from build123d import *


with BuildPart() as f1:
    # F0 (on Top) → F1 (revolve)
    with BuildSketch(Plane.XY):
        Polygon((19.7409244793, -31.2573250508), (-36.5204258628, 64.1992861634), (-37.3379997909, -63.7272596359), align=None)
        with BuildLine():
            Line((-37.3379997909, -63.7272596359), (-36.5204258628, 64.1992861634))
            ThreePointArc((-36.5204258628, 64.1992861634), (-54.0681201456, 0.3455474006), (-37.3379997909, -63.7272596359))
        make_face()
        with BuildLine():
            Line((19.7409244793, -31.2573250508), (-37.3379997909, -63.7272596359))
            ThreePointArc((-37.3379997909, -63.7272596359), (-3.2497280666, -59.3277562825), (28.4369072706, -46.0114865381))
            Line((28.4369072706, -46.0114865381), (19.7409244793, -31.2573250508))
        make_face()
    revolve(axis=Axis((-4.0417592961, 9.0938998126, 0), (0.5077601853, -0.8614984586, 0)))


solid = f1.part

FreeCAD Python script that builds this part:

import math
import FreeCAD as App
import Part
import Sketcher

doc = App.newDocument("Part")
body = doc.addObject("PartDesign::Body", "Body")

# Sketch on XY plane
sketch1 = doc.addObject("Sketcher::SketchObject", "Sketch")
body.addObject(sketch1)
sketch1.AttachmentSupport = (doc.XY_Plane, [""])
sketch1.MapMode = "FlatFace"
sketch1.addGeometry([
    Part.LineSegment(App.Vector(20, -31, 0), App.Vector(-37, 64, 0)),
    Part.ArcOfCircle(Part.Circle(App.Vector(74, 0, 0), App.Vector(0, 0, 1), 128), math.radians(150), math.radians(210)),
    Part.ArcOfCircle(Part.Circle(App.Vector(-37, 64, 0), App.Vector(0, 0, 1), 128), math.radians(-90), math.radians(-59)),
    Part.LineSegment(App.Vector(28, -46, 0), App.Vector(20, -31, 0)),
], False)
sketch1.addGeometry(Part.LineSegment(App.Vector(-37, 64, 0), App.Vector(28, -46, 0)), True)  # axis
sketch1.addConstraint([
    Sketcher.Constraint("Coincident", 0, 2, 1, 1),
    Sketcher.Constraint("Coincident", 1, 2, 2, 1),
    Sketcher.Constraint("Coincident", 2, 2, 3, 1),
    Sketcher.Constraint("Coincident", 3, 2, 0, 1),
    Sketcher.Constraint("Coincident", 0, 2, 2, 3),
    Sketcher.Constraint("Coincident", 4, 1, 2, 3),
    Sketcher.Constraint("Coincident", 4, 2, 2, 2),
    Sketcher.Constraint("Equal", 1, 2),
    Sketcher.Constraint("Parallel", 0, 3),
    Sketcher.Constraint("Radius", 1, 127.929158),
    Sketcher.Constraint("DistanceX", 1, 2, -1, 1, 37.338),
    Sketcher.Constraint("DistanceX", 3, 2, 1, 3, 54.117501),
    Sketcher.Constraint("DistanceY", 3, 2, 1, 3, 30.785299),
    Sketcher.Constraint("Distance", 3, 17.126161),
    Sketcher.Constraint("DistanceY", 1, 2, -1, 1, 63.72726),
])
revolution = doc.addObject("PartDesign::Revolution", "Revolution")
body.addObject(revolution)
revolution.Profile = sketch1
revolution.ReferenceAxis = (sketch1, ["Axis0"])
revolution.Angle = 360

doc.recompute()
